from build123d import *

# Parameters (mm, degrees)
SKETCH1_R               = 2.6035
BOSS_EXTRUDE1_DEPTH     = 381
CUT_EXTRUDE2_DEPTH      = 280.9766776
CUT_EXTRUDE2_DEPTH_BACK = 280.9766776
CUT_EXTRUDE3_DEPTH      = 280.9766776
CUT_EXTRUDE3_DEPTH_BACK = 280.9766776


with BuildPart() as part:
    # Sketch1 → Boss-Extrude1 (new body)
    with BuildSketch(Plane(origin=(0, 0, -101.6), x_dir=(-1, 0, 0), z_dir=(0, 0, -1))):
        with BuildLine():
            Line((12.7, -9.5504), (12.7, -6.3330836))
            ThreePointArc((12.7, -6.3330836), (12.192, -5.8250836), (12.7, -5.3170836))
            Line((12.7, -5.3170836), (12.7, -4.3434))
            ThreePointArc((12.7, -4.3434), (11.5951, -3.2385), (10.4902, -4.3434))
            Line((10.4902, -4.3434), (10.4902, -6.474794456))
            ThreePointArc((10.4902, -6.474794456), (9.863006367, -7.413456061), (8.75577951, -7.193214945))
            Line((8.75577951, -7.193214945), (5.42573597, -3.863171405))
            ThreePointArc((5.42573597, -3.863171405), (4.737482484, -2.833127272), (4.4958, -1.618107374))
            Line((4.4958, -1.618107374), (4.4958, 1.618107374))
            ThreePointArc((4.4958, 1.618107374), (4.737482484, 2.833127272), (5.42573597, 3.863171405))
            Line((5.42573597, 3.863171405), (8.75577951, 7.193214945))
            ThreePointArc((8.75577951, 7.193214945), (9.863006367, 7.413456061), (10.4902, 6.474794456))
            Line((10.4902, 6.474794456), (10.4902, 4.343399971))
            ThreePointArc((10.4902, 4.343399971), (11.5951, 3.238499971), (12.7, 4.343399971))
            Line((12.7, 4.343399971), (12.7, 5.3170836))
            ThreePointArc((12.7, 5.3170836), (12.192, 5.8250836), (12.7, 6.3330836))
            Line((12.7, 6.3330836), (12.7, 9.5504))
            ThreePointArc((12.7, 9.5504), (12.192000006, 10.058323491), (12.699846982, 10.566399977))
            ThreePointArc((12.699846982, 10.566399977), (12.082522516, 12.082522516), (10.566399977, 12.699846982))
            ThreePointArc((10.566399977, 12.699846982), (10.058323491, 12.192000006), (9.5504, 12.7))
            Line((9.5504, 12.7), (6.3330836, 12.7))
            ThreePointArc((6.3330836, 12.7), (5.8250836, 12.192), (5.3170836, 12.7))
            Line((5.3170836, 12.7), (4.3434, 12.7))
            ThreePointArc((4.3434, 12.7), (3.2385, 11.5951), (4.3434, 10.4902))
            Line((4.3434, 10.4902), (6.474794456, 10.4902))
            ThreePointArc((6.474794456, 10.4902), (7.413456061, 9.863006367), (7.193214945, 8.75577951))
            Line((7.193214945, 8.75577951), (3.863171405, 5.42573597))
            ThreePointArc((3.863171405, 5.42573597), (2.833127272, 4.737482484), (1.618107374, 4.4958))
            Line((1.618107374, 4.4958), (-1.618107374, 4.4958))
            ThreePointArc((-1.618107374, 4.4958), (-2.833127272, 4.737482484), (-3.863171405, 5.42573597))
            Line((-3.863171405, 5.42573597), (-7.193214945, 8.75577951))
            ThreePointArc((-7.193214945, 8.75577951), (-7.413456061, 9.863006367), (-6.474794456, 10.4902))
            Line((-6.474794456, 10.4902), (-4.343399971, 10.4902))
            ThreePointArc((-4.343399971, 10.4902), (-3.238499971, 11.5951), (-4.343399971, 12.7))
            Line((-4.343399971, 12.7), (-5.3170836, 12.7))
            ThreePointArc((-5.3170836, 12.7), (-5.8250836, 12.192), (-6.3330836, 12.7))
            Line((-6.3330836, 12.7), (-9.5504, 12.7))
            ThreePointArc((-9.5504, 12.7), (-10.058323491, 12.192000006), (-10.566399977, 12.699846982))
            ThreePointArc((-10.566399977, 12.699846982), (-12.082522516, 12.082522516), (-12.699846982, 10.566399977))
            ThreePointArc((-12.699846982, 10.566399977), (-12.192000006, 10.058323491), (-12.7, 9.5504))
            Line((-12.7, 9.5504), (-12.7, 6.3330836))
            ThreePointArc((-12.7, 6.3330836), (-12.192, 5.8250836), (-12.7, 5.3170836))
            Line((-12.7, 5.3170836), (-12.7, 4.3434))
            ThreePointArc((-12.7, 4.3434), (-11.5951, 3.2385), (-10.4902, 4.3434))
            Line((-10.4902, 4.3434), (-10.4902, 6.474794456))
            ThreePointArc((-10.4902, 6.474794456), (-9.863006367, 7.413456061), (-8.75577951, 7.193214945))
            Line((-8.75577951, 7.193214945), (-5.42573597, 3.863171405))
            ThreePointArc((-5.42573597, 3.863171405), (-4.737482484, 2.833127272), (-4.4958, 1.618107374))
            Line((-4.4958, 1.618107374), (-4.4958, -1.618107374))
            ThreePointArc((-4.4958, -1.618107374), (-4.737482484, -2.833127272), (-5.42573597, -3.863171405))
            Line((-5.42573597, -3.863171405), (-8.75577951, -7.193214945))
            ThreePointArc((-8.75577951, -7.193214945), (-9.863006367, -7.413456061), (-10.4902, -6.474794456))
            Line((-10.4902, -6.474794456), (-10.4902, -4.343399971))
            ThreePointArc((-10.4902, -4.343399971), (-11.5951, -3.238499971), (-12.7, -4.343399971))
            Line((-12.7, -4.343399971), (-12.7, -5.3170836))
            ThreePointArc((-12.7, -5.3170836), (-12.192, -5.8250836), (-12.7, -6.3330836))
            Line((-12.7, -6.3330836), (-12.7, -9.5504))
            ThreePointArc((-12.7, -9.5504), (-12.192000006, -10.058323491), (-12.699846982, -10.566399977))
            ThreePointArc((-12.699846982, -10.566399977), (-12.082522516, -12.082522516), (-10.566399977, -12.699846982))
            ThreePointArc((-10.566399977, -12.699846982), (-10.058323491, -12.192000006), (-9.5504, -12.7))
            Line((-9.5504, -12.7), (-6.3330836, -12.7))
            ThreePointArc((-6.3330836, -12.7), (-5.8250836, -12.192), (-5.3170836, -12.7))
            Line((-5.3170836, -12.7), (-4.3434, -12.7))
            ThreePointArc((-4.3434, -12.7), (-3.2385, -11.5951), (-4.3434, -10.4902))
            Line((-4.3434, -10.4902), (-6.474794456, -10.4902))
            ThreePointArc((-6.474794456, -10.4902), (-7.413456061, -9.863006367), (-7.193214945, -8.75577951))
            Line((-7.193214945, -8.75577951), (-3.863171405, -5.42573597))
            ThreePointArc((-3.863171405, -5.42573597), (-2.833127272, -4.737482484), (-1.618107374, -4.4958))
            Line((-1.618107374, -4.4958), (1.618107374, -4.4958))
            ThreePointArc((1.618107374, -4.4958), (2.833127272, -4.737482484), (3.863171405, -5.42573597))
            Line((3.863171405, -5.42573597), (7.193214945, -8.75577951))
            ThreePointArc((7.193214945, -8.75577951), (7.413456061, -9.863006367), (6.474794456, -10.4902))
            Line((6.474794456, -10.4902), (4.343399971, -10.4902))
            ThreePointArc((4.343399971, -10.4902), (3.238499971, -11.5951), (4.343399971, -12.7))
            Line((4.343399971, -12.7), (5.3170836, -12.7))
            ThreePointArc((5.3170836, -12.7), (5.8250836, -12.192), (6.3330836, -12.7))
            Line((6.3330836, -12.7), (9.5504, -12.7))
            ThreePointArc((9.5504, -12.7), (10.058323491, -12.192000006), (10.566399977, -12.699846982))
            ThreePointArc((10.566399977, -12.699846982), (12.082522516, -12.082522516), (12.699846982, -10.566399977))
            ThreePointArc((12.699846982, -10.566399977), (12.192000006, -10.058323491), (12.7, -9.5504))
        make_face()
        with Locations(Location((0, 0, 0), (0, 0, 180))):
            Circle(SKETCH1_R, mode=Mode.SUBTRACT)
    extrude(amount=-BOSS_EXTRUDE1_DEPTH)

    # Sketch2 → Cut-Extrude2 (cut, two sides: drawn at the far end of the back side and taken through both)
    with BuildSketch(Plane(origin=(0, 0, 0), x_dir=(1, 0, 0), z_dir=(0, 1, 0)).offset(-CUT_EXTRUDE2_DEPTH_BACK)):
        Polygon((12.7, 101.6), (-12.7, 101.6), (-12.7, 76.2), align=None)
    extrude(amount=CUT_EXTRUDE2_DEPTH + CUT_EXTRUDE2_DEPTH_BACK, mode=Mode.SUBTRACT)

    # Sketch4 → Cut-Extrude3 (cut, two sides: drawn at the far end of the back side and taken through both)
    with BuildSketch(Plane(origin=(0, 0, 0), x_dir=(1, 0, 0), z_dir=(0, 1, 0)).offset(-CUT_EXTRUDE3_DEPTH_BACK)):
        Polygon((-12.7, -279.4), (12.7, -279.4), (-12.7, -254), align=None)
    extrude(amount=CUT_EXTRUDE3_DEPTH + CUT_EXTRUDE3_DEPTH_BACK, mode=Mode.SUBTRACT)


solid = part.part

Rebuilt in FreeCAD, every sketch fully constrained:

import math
import FreeCAD as App
import Part
import Sketcher
Q = App.Units.Quantity


def add_polygon(sketch, points):
    """Adds a closed chain of lines whose ends are joined by coincident constraints."""
    first, n = sketch.GeometryCount, len(points)
    for a, b in zip(points, points[1:] + points[:1]):
        sketch.addGeometry(Part.LineSegment(App.Vector(*a, 0), App.Vector(*b, 0)), False)
    for i in range(n):
        sketch.addConstraint(Sketcher.Constraint("Coincident", first + i, 2, first + (i + 1) % n, 1))

doc = App.newDocument("Part")
body = doc.addObject("PartDesign::Body", "Body")

sketch1 = body.newObject("Sketcher::SketchObject", "Sketch")
sketch1.AttachmentSupport = (doc.getObject("XY_Plane"), [""])
sketch1.MapMode = "FlatFace"
sketch1.AttachmentOffset = App.Placement(App.Vector(0, 0, -4 * 25.4), App.Rotation())
sketch1.addGeometry(Part.LineSegment(App.Vector(-12.7, -9.6, 0), App.Vector(-12.7, -6.3, 0)), False)
sketch1.addGeometry(Part.ArcOfCircle(Part.Circle(App.Vector(-12.7, -5.8, 0), App.Vector(0, 0, 1), 0.5), math.radians(-90), math.radians(90)), False)
sketch1.addGeometry(Part.LineSegment(App.Vector(-12.7, -5.3, 0), App.Vector(-12.7, -4.3, 0)), False)
sketch1.addGeometry(Part.ArcOfCircle(Part.Circle(App.Vector(-11.6, -4.3, 0), App.Vector(0, 0, 1), 1.1), math.radians(0), math.radians(180)), False)
sketch1.addGeometry(Part.LineSegment(App.Vector(-10.5, -4.3, 0), App.Vector(-10.5, -6.5, 0)), False)
sketch1.addGeometry(Part.ArcOfCircle(Part.Circle(App.Vector(-9.5, -6.5, 0), App.Vector(0, 0, 1), 1), math.radians(180), math.radians(315)), False)
sketch1.addGeometry(Part.LineSegment(App.Vector(-8.8, -7.2, 0), App.Vector(-5.4, -3.9, 0)), False)
sketch1.addGeometry(Part.ArcOfCircle(Part.Circle(App.Vector(-7.7, -1.6, 0), App.Vector(0, 0, 1), 3.2), math.radians(-45), math.radians(0)), False)
sketch1.addGeometry(Part.LineSegment(App.Vector(-4.5, -1.6, 0), App.Vector(-4.5, 1.6, 0)), False)
sketch1.addGeometry(Part.ArcOfCircle(Part.Circle(App.Vector(-7.7, 1.6, 0), App.Vector(0, 0, 1), 3.2), math.radians(0), math.radians(45)), False)
sketch1.addGeometry(Part.LineSegment(App.Vector(-5.4, 3.9, 0), App.Vector(-8.8, 7.2, 0)), False)
sketch1.addGeometry(Part.ArcOfCircle(Part.Circle(App.Vector(-9.5, 6.5, 0), App.Vector(0, 0, 1), 1), math.radians(45), math.radians(180)), False)
sketch1.addGeometry(Part.LineSegment(App.Vector(-10.5, 6.5, 0), App.Vector(-10.5, 4.3, 0)), False)
sketch1.addGeometry(Part.ArcOfCircle(Part.Circle(App.Vector(-11.6, 4.3, 0), App.Vector(0, 0, 1), 1.1), math.radians(180), math.radians(360)), False)
sketch1.addGeometry(Part.LineSegment(App.Vector(-12.7, 4.3, 0), App.Vector(-12.7, 5.3, 0)), False)
sketch1.addGeometry(Part.ArcOfCircle(Part.Circle(App.Vector(-12.7, 5.8, 0), App.Vector(0, 0, 1), 0.5), math.radians(-90), math.radians(90)), False)
sketch1.addGeometry(Part.LineSegment(App.Vector(-12.7, 6.3, 0), App.Vector(-12.7, 9.6, 0)), False)
sketch1.addGeometry(Part.ArcOfCircle(Part.Circle(App.Vector(-12.7, 10.1, 0), App.Vector(0, 0, 1), 0.5), math.radians(-90), math.radians(90)), False)
sketch1.addGeometry(Part.ArcOfCircle(Part.Circle(App.Vector(-10.6, 10.6, 0), App.Vector(0, 0, 1), 2.1), math.radians(89), math.radians(181)), False)
sketch1.addGeometry(Part.ArcOfCircle(Part.Circle(App.Vector(-10.1, 12.7, 0), App.Vector(0, 0, 1), 0.5), math.radians(-180), math.radians(0)), False)
sketch1.addGeometry(Part.LineSegment(App.Vector(-9.6, 12.7, 0), App.Vector(-6.3, 12.7, 0)), False)
sketch1.addGeometry(Part.ArcOfCircle(Part.Circle(App.Vector(-5.8, 12.7, 0), App.Vector(0, 0, 1), 0.5), math.radians(180), math.radians(360)), False)
sketch1.addGeometry(Part.LineSegment(App.Vector(-5.3, 12.7, 0), App.Vector(-4.3, 12.7, 0)), False)
sketch1.addGeometry(Part.ArcOfCircle(Part.Circle(App.Vector(-4.3, 11.6, 0), App.Vector(0, 0, 1), 1.1), math.radians(-90), math.radians(90)), False)
sketch1.addGeometry(Part.LineSegment(App.Vector(-4.3, 10.5, 0), App.Vector(-6.5, 10.5, 0)), False)
sketch1.addGeometry(Part.ArcOfCircle(Part.Circle(App.Vector(-6.5, 9.5, 0), App.Vector(0, 0, 1), 1), math.radians(90), math.radians(225)), False)
sketch1.addGeometry(Part.LineSegment(App.Vector(-7.2, 8.8, 0), App.Vector(-3.9, 5.4, 0)), False)
sketch1.addGeometry(Part.ArcOfCircle(Part.Circle(App.Vector(-1.6, 7.7, 0), App.Vector(0, 0, 1), 3.2), math.radians(-135), math.radians(-90)), False)
sketch1.addGeometry(Part.LineSegment(App.Vector(-1.6, 4.5, 0), App.Vector(1.6, 4.5, 0)), False)
sketch1.addGeometry(Part.ArcOfCircle(Part.Circle(App.Vector(1.6, 7.7, 0), App.Vector(0, 0, 1), 3.2), math.radians(-90), math.radians(-45)), False)
sketch1.addGeometry(Part.LineSegment(App.Vector(3.9, 5.4, 0), App.Vector(7.2, 8.8, 0)), False)
sketch1.addGeometry(Part.ArcOfCircle(Part.Circle(App.Vector(6.5, 9.5, 0), App.Vector(0, 0, 1), 1), math.radians(-45), math.radians(90)), False)
sketch1.addGeometry(Part.LineSegment(App.Vector(6.5, 10.5, 0), App.Vector(4.3, 10.5, 0)), False)
sketch1.addGeometry(Part.ArcOfCircle(Part.Circle(App.Vector(4.3, 11.6, 0), App.Vector(0, 0, 1), 1.1), math.radians(90), math.radians(270)), False)
sketch1.addGeometry(Part.LineSegment(App.Vector(4.3, 12.7, 0), App.Vector(5.3, 12.7, 0)), False)
sketch1.addGeometry(Part.ArcOfCircle(Part.Circle(App.Vector(5.8, 12.7, 0), App.Vector(0, 0, 1), 0.5), math.radians(180), math.radians(360)), False)
sketch1.addGeometry(Part.LineSegment(App.Vector(6.3, 12.7, 0), App.Vector(9.6, 12.7, 0)), False)
sketch1.addGeometry(Part.ArcOfCircle(Part.Circle(App.Vector(10.1, 12.7, 0), App.Vector(0, 0, 1), 0.5), math.radians(180), math.radians(360)), False)
sketch1.addGeometry(Part.ArcOfCircle(Part.Circle(App.Vector(10.6, 10.6, 0), App.Vector(0, 0, 1), 2.1), math.radians(-1), math.radians(91)), False)
sketch1.addGeometry(Part.ArcOfCircle(Part.Circle(App.Vector(12.7, 10.1, 0), App.Vector(0, 0, 1), 0.5), math.radians(90), math.radians(270)), False)
sketch1.addGeometry(Part.LineSegment(App.Vector(12.7, 9.6, 0), App.Vector(12.7, 6.3, 0)), False)
sketch1.addGeometry(Part.ArcOfCircle(Part.Circle(App.Vector(12.7, 5.8, 0), App.Vector(0, 0, 1), 0.5), math.radians(90), math.radians(270)), False)
sketch1.addGeometry(Part.LineSegment(App.Vector(12.7, 5.3, 0), App.Vector(12.7, 4.3, 0)), False)
sketch1.addGeometry(Part.ArcOfCircle(Part.Circle(App.Vector(11.6, 4.3, 0), App.Vector(0, 0, 1), 1.1), math.radians(180), math.radians(360)), False)
sketch1.addGeometry(Part.LineSegment(App.Vector(10.5, 4.3, 0), App.Vector(10.5, 6.5, 0)), False)
sketch1.addGeometry(Part.ArcOfCircle(Part.Circle(App.Vector(9.5, 6.5, 0), App.Vector(0, 0, 1), 1), math.radians(0), math.radians(135)), False)
sketch1.addGeometry(Part.LineSegment(App.Vector(8.8, 7.2, 0), App.Vector(5.4, 3.9, 0)), False)
sketch1.addGeometry(Part.ArcOfCircle(Part.Circle(App.Vector(7.7, 1.6, 0), App.Vector(0, 0, 1), 3.2), math.radians(135), math.radians(180)), False)
sketch1.addGeometry(Part.LineSegment(App.Vector(4.5, 1.6, 0), App.Vector(4.5, -1.6, 0)), False)
sketch1.addGeometry(Part.ArcOfCircle(Part.Circle(App.Vector(7.7, -1.6, 0), App.Vector(0, 0, 1), 3.2), math.radians(180), math.radians(225)), False)
sketch1.addGeometry(Part.LineSegment(App.Vector(5.4, -3.9, 0), App.Vector(8.8, -7.2, 0)), False)
sketch1.addGeometry(Part.ArcOfCircle(Part.Circle(App.Vector(9.5, -6.5, 0), App.Vector(0, 0, 1), 1), math.radians(-135), math.radians(0)), False)
sketch1.addGeometry(Part.LineSegment(App.Vector(10.5, -6.5, 0), App.Vector(10.5, -4.3, 0)), False)
sketch1.addGeometry(Part.ArcOfCircle(Part.Circle(App.Vector(11.6, -4.3, 0), App.Vector(0, 0, 1), 1.1), math.radians(0), math.radians(180)), False)
sketch1.addGeometry(Part.LineSegment(App.Vector(12.7, -4.3, 0), App.Vector(12.7, -5.3, 0)), False)
sketch1.addGeometry(Part.ArcOfCircle(Part.Circle(App.Vector(12.7, -5.8, 0), App.Vector(0, 0, 1), 0.5), math.radians(90), math.radians(270)), False)
sketch1.addGeometry(Part.LineSegment(App.Vector(12.7, -6.3, 0), App.Vector(12.7, -9.6, 0)), False)
sketch1.addGeometry(Part.ArcOfCircle(Part.Circle(App.Vector(12.7, -10.1, 0), App.Vector(0, 0, 1), 0.5), math.radians(90), math.radians(270)), False)
sketch1.addGeometry(Part.ArcOfCircle(Part.Circle(App.Vector(10.6, -10.6, 0), App.Vector(0, 0, 1), 2.1), math.radians(-91), math.radians(1)), False)
sketch1.addGeometry(Part.ArcOfCircle(Part.Circle(App.Vector(10.1, -12.7, 0), App.Vector(0, 0, 1), 0.5), math.radians(0), math.radians(180)), False)
sketch1.addGeometry(Part.LineSegment(App.Vector(9.6, -12.7, 0), App.Vector(6.3, -12.7, 0)), False)
sketch1.addGeometry(Part.ArcOfCircle(Part.Circle(App.Vector(5.8, -12.7, 0), App.Vector(0, 0, 1), 0.5), math.radians(0), math.radians(180)), False)
sketch1.addGeometry(Part.LineSegment(App.Vector(5.3, -12.7, 0), App.Vector(4.3, -12.7, 0)), False)
sketch1.addGeometry(Part.ArcOfCircle(Part.Circle(App.Vector(4.3, -11.6, 0), App.Vector(0, 0, 1), 1.1), math.radians(90), math.radians(270)), False)
sketch1.addGeometry(Part.LineSegment(App.Vector(4.3, -10.5, 0), App.Vector(6.5, -10.5, 0)), False)
sketch1.addGeometry(Part.ArcOfCircle(Part.Circle(App.Vector(6.5, -9.5, 0), App.Vector(0, 0, 1), 1), math.radians(-90), math.radians(45)), False)
sketch1.addGeometry(Part.LineSegment(App.Vector(7.2, -8.8, 0), App.Vector(3.9, -5.4, 0)), False)
sketch1.addGeometry(Part.ArcOfCircle(Part.Circle(App.Vector(1.6, -7.7, 0), App.Vector(0, 0, 1), 3.2), math.radians(45), math.radians(90)), False)
sketch1.addGeometry(Part.LineSegment(App.Vector(1.6, -4.5, 0), App.Vector(-1.6, -4.5, 0)), False)
sketch1.addGeometry(Part.ArcOfCircle(Part.Circle(App.Vector(-1.6, -7.7, 0), App.Vector(0, 0, 1), 3.2), math.radians(90), math.radians(135)), False)
sketch1.addGeometry(Part.LineSegment(App.Vector(-3.9, -5.4, 0), App.Vector(-7.2, -8.8, 0)), False)
sketch1.addGeometry(Part.ArcOfCircle(Part.Circle(App.Vector(-6.5, -9.5, 0), App.Vector(0, 0, 1), 1), math.radians(135), math.radians(270)), False)
sketch1.addGeometry(Part.LineSegment(App.Vector(-6.5, -10.5, 0), App.Vector(-4.3, -10.5, 0)), False)
sketch1.addGeometry(Part.ArcOfCircle(Part.Circle(App.Vector(-4.3, -11.6, 0), App.Vector(0, 0, 1), 1.1), math.radians(-90), math.radians(90)), False)
sketch1.addGeometry(Part.LineSegment(App.Vector(-4.3, -12.7, 0), App.Vector(-5.3, -12.7, 0)), False)
sketch1.addGeometry(Part.ArcOfCircle(Part.Circle(App.Vector(-5.8, -12.7, 0), App.Vector(0, 0, 1), 0.5), math.radians(0), math.radians(180)), False)
sketch1.addGeometry(Part.LineSegment(App.Vector(-6.3, -12.7, 0), App.Vector(-9.6, -12.7, 0)), False)
sketch1.addGeometry(Part.ArcOfCircle(Part.Circle(App.Vector(-10.1, -12.7, 0), App.Vector(0, 0, 1), 0.5), math.radians(0), math.radians(180)), False)
sketch1.addGeometry(Part.ArcOfCircle(Part.Circle(App.Vector(-10.6, -10.6, 0), App.Vector(0, 0, 1), 2.1), math.radians(179), math.radians(271)), False)
sketch1.addGeometry(Part.ArcOfCircle(Part.Circle(App.Vector(-12.7, -10.1, 0), App.Vector(0, 0, 1), 0.5), math.radians(-90), math.radians(90)), False)
sketch1.addGeometry(Part.Circle(App.Vector(0, 0, 0), App.Vector(0, 0, 1), 2.6), False)
sketch1.addConstraint(Sketcher.Constraint("Coincident", 0, 2, 1, 1))
sketch1.addConstraint(Sketcher.Constraint("Coincident", 1, 2, 2, 1))
sketch1.addConstraint(Sketcher.Constraint("Tangent", 2, 2, 3, 2))
sketch1.addConstraint(Sketcher.Constraint("Tangent", 3, 1, 4, 1))
sketch1.addConstraint(Sketcher.Constraint("Tangent", 4, 2, 5, 1))
sketch1.addConstraint(Sketcher.Constraint("Tangent", 5, 2, 6, 1))
sketch1.addConstraint(Sketcher.Constraint("Tangent", 6, 2, 7, 1))
sketch1.addConstraint(Sketcher.Constraint("Tangent", 7, 2, 8, 1))
sketch1.addConstraint(Sketcher.Constraint("Tangent", 8, 2, 9, 1))
sketch1.addConstraint(Sketcher.Constraint("Tangent", 9, 2, 10, 1))
sketch1.addConstraint(Sketcher.Constraint("Tangent", 10, 2, 11, 1))
sketch1.addConstraint(Sketcher.Constraint("Tangent", 11, 2, 12, 1))
sketch1.addConstraint(Sketcher.Constraint("Tangent", 12, 2, 13, 2))
sketch1.addConstraint(Sketcher.Constraint("Tangent", 13, 1, 14, 1))
sketch1.addConstraint(Sketcher.Constraint("Coincident", 14, 2, 15, 1))
sketch1.addConstraint(Sketcher.Constraint("Coincident", 15, 2, 16, 1))
sketch1.addConstraint(Sketcher.Constraint("Coincident", 16, 2, 17, 1))
sketch1.addConstraint(Sketcher.Constraint("Coincident", 17, 2, 18, 2))
sketch1.addConstraint(Sketcher.Constraint("Coincident", 18, 1, 19, 1))
sketch1.addConstraint(Sketcher.Constraint("Coincident", 19, 2, 20, 1))
sketch1.addConstraint(Sketcher.Constraint("Coincident", 20, 2, 21, 1))
sketch1.addConstraint(Sketcher.Constraint("Coincident", 21, 2, 22, 1))
sketch1.addConstraint(Sketcher.Constraint("Tangent", 22, 2, 23, 2))
sketch1.addConstraint(Sketcher.Constraint("Tangent", 23, 1, 24, 1))
sketch1.addConstraint(Sketcher.Constraint("Tangent", 24, 2, 25, 1))
sketch1.addConstraint(Sketcher.Constraint("Tangent", 25, 2, 26, 1))
sketch1.addConstraint(Sketcher.Constraint("Tangent", 26, 2, 27, 1))
sketch1.addConstraint(Sketcher.Constraint("Tangent", 27, 2, 28, 1))
sketch1.addConstraint(Sketcher.Constraint("Tangent", 28, 2, 29, 1))
sketch1.addConstraint(Sketcher.Constraint("Tangent", 29, 2, 30, 1))
sketch1.addConstraint(Sketcher.Constraint("Tangent", 30, 2, 31, 1))
sketch1.addConstraint(Sketcher.Constraint("Tangent", 31, 2, 32, 1))
sketch1.addConstraint(Sketcher.Constraint("Tangent", 32, 2, 33, 2))
sketch1.addConstraint(Sketcher.Constraint("Tangent", 33, 1, 34, 1))
sketch1.addConstraint(Sketcher.Constraint("Coincident", 34, 2, 35, 1))
sketch1.addConstraint(Sketcher.Constraint("Coincident", 35, 2, 36, 1))
sketch1.addConstraint(Sketcher.Constraint("Coincident", 36, 2, 37, 1))
sketch1.addConstraint(Sketcher.Constraint("Coincident", 37, 2, 38, 2))
sketch1.addConstraint(Sketcher.Constraint("Coincident", 38, 1, 39, 1))
sketch1.addConstraint(Sketcher.Constraint("Coincident", 39, 2, 40, 1))
sketch1.addConstraint(Sketcher.Constraint("Coincident", 40, 2, 41, 1))
sketch1.addConstraint(Sketcher.Constraint("Coincident", 41, 2, 42, 1))
sketch1.addConstraint(Sketcher.Constraint("Tangent", 42, 2, 43, 2))
sketch1.addConstraint(Sketcher.Constraint("Tangent", 43, 1, 44, 1))
sketch1.addConstraint(Sketcher.Constraint("Tangent", 44, 2, 45, 1))
sketch1.addConstraint(Sketcher.Constraint("Tangent", 45, 2, 46, 1))
sketch1.addConstraint(Sketcher.Constraint("Tangent", 46, 2, 47, 1))
sketch1.addConstraint(Sketcher.Constraint("Tangent", 47, 2, 48, 1))
sketch1.addConstraint(Sketcher.Constraint("Tangent", 48, 2, 49, 1))
sketch1.addConstraint(Sketcher.Constraint("Tangent", 49, 2, 50, 1))
sketch1.addConstraint(Sketcher.Constraint("Tangent", 50, 2, 51, 1))
sketch1.addConstraint(Sketcher.Constraint("Tangent", 51, 2, 52, 1))
sketch1.addConstraint(Sketcher.Constraint("Tangent", 52, 2, 53, 2))
sketch1.addConstraint(Sketcher.Constraint("Tangent", 53, 1, 54, 1))
sketch1.addConstraint(Sketcher.Constraint("Coincident", 54, 2, 55, 1))
sketch1.addConstraint(Sketcher.Constraint("Coincident", 55, 2, 56, 1))
sketch1.addConstraint(Sketcher.Constraint("Coincident", 56, 2, 57, 1))
sketch1.addConstraint(Sketcher.Constraint("Coincident", 57, 2, 58, 2))
sketch1.addConstraint(Sketcher.Constraint("Coincident", 58, 1, 59, 1))
sketch1.addConstraint(Sketcher.Constraint("Coincident", 59, 2, 60, 1))
sketch1.addConstraint(Sketcher.Constraint("Coincident", 60, 2, 61, 1))
sketch1.addConstraint(Sketcher.Constraint("Coincident", 61, 2, 62, 1))
sketch1.addConstraint(Sketcher.Constraint("Tangent", 62, 2, 63, 2))
sketch1.addConstraint(Sketcher.Constraint("Tangent", 63, 1, 64, 1))
sketch1.addConstraint(Sketcher.Constraint("Tangent", 64, 2, 65, 1))
sketch1.addConstraint(Sketcher.Constraint("Tangent", 65, 2, 66, 1))
sketch1.addConstraint(Sketcher.Constraint("Tangent", 66, 2, 67, 1))
sketch1.addConstraint(Sketcher.Constraint("Tangent", 67, 2, 68, 1))
sketch1.addConstraint(Sketcher.Constraint("Tangent", 68, 2, 69, 1))
sketch1.addConstraint(Sketcher.Constraint("Tangent", 69, 2, 70, 1))
sketch1.addConstraint(Sketcher.Constraint("Tangent", 70, 2, 71, 1))
sketch1.addConstraint(Sketcher.Constraint("Tangent", 71, 2, 72, 1))
sketch1.addConstraint(Sketcher.Constraint("Tangent", 72, 2, 73, 2))
sketch1.addConstraint(Sketcher.Constraint("Tangent", 73, 1, 74, 1))
sketch1.addConstraint(Sketcher.Constraint("Coincident", 74, 2, 75, 1))
sketch1.addConstraint(Sketcher.Constraint("Coincident", 75, 2, 76, 1))
sketch1.addConstraint(Sketcher.Constraint("Coincident", 76, 2, 77, 1))
sketch1.addConstraint(Sketcher.Constraint("Coincident", 77, 2, 78, 2))
sketch1.addConstraint(Sketcher.Constraint("Coincident", 78, 1, 79, 1))
sketch1.addConstraint(Sketcher.Constraint("Coincident", 79, 2, 0, 1))
sketch1.addConstraint(Sketcher.Constraint("Vertical", 0))
sketch1.addConstraint(Sketcher.Constraint("Vertical", 2))
sketch1.addConstraint(Sketcher.Constraint("Vertical", 4))
sketch1.addConstraint(Sketcher.Constraint("Vertical", 8))
sketch1.addConstraint(Sketcher.Constraint("Vertical", 12))
sketch1.addConstraint(Sketcher.Constraint("Vertical", 14))
sketch1.addConstraint(Sketcher.Constraint("Vertical", 16))
sketch1.addConstraint(Sketcher.Constraint("Horizontal", 20))
sketch1.addConstraint(Sketcher.Constraint("Horizontal", 22))
sketch1.addConstraint(Sketcher.Constraint("Horizontal", 24))
sketch1.addConstraint(Sketcher.Constraint("Horizontal", 28))
sketch1.addConstraint(Sketcher.Constraint("Horizontal", 32))
sketch1.addConstraint(Sketcher.Constraint("Horizontal", 34))
sketch1.addConstraint(Sketcher.Constraint("Horizontal", 36))
sketch1.addConstraint(Sketcher.Constraint("Vertical", 40))
sketch1.addConstraint(Sketcher.Constraint("Vertical", 42))
sketch1.addConstraint(Sketcher.Constraint("Vertical", 44))
sketch1.addConstraint(Sketcher.Constraint("Vertical", 48))
sketch1.addConstraint(Sketcher.Constraint("Vertical", 52))
sketch1.addConstraint(Sketcher.Constraint("Vertical", 54))
sketch1.addConstraint(Sketcher.Constraint("Vertical", 56))
sketch1.addConstraint(Sketcher.Constraint("Horizontal", 60))
sketch1.addConstraint(Sketcher.Constraint("Horizontal", 62))
sketch1.addConstraint(Sketcher.Constraint("Horizontal", 64))
sketch1.addConstraint(Sketcher.Constraint("Horizontal", 68))
sketch1.addConstraint(Sketcher.Constraint("Horizontal", 72))
sketch1.addConstraint(Sketcher.Constraint("Horizontal", 74))
sketch1.addConstraint(Sketcher.Constraint("Horizontal", 76))
sketch1.addConstraint(Sketcher.Constraint("Coincident", 80, 3, -1, 1))
sketch1.addConstraint(Sketcher.Constraint("Equal", 7, 9))
sketch1.addConstraint(Sketcher.Constraint("Equal", 5, 11))
sketch1.addConstraint(Sketcher.Constraint("Equal", 3, 13))
sketch1.addConstraint(Sketcher.Constraint("Equal", 1, 15))
sketch1.addConstraint(Sketcher.Constraint("Equal", 15, 17))
sketch1.addConstraint(Sketcher.Constraint("Equal", 17, 19))
sketch1.addConstraint(Sketcher.Constraint("Equal", 19, 21))
sketch1.addConstraint(Sketcher.Constraint("Equal", 13, 23))
sketch1.addConstraint(Sketcher.Constraint("Equal", 11, 25))
sketch1.addConstraint(Sketcher.Constraint("Equal", 9, 27))
sketch1.addConstraint(Sketcher.Constraint("Equal", 27, 29))
sketch1.addConstraint(Sketcher.Constraint("Equal", 25, 31))
sketch1.addConstraint(Sketcher.Constraint("Equal", 23, 33))
sketch1.addConstraint(Sketcher.Constraint("Equal", 21, 35))
sketch1.addConstraint(Sketcher.Constraint("Equal", 35, 37))
sketch1.addConstraint(Sketcher.Constraint("Equal", 18, 38))
sketch1.addConstraint(Sketcher.Constraint("Equal", 37, 39))
sketch1.addConstraint(Sketcher.Constraint("Equal", 39, 41))
sketch1.addConstraint(Sketcher.Constraint("Equal", 33, 43))
sketch1.addConstraint(Sketcher.Constraint("Equal", 31, 45))
sketch1.addConstraint(Sketcher.Constraint("Equal", 29, 47))
sketch1.addConstraint(Sketcher.Constraint("Equal", 47, 49))
sketch1.addConstraint(Sketcher.Constraint("Equal", 45, 51))
sketch1.addConstraint(Sketcher.Constraint("Equal", 43, 53))
sketch1.addConstraint(Sketcher.Constraint("Equal", 41, 55))
sketch1.addConstraint(Sketcher.Constraint("Equal", 55, 57))
sketch1.addConstraint(Sketcher.Constraint("Equal", 38, 58))
sketch1.addConstraint(Sketcher.Constraint("Equal", 57, 59))
sketch1.addConstraint(Sketcher.Constraint("Equal", 59, 61))
sketch1.addConstraint(Sketcher.Constraint("Equal", 53, 63))
sketch1.addConstraint(Sketcher.Constraint("Equal", 51, 65))
sketch1.addConstraint(Sketcher.Constraint("Equal", 49, 67))
sketch1.addConstraint(Sketcher.Constraint("Equal", 67, 69))
sketch1.addConstraint(Sketcher.Constraint("Equal", 65, 71))
sketch1.addConstraint(Sketcher.Constraint("Equal", 63, 73))
sketch1.addConstraint(Sketcher.Constraint("Equal", 61, 75))
sketch1.addConstraint(Sketcher.Constraint("Equal", 75, 77))
sketch1.addConstraint(Sketcher.Constraint("Equal", 58, 78))
sketch1.addConstraint(Sketcher.Constraint("Equal", 77, 79))
sketch1.addConstraint(Sketcher.Constraint("Symmetric", 1, 3, 41, 3, -1, 1))
sketch1.addConstraint(Sketcher.Constraint("Symmetric", 3, 3, 43, 3, -1, 1))
sketch1.addConstraint(Sketcher.Constraint("Symmetric", 7, 3, 47, 3, -1, 1))
sketch1.addConstraint(Sketcher.Constraint("Symmetric", 11, 3, 51, 3, -1, 1))
sketch1.addConstraint(Sketcher.Constraint("Symmetric", 15, 3, 55, 3, -1, 1))
sketch1.addConstraint(Sketcher.Constraint("Symmetric", 17, 3, 57, 3, -1, 1))
sketch1.addConstraint(Sketcher.Constraint("Symmetric", 18, 3, 58, 3, -1, 1))
sketch1.addConstraint(Sketcher.Constraint("Symmetric", 19, 3, 59, 3, -1, 1))
sketch1.addConstraint(Sketcher.Constraint("Symmetric", 21, 3, 61, 3, -1, 1))
sketch1.addConstraint(Sketcher.Constraint("Symmetric", 23, 3, 63, 3, -1, 1))
sketch1.addConstraint(Sketcher.Constraint("Symmetric", 27, 3, 67, 3, -1, 1))
sketch1.addConstraint(Sketcher.Constraint("Symmetric", 31, 3, 71, 3, -1, 1))
sketch1.addConstraint(Sketcher.Constraint("Symmetric", 35, 3, 75, 3, -1, 1))
sketch1.addConstraint(Sketcher.Constraint("Symmetric", 37, 3, 77, 3, -1, 1))
sketch1.addConstraint(Sketcher.Constraint("Symmetric", 38, 3, 78, 3, -1, 1))
sketch1.addConstraint(Sketcher.Constraint("Symmetric", 39, 3, 79, 3, -1, 1))
sketch1.addConstraint(Sketcher.Constraint("Symmetric", 25, 3, 31, 3, -2))
sketch1.addConstraint(Sketcher.Constraint("Symmetric", 21, 3, 35, 3, -2))
sketch1.addConstraint(Sketcher.Constraint("Symmetric", 19, 3, 37, 3, -2))
sketch1.addConstraint(Sketcher.Constraint("Symmetric", 18, 3, 38, 3, -2))
sketch1.addConstraint(Sketcher.Constraint("Symmetric", 17, 3, 39, 3, -2))
sketch1.addConstraint(Sketcher.Constraint("Symmetric", 15, 3, 41, 3, -2))
sketch1.addConstraint(Sketcher.Constraint("Symmetric", 13, 3, 43, 3, -2))
sketch1.addConstraint(Sketcher.Constraint("Symmetric", 10, 2, 45, 2, -2))
sketch1.addConstraint(Sketcher.Constraint("Symmetric", 6, 2, 49, 2, -2))
sketch1.addConstraint(Sketcher.Constraint("Symmetric", 66, 2, 69, 2, -2))
sketch1.addConstraint(Sketcher.Constraint("Perpendicular", 6, 10))
sketch1.addConstraint(Sketcher.Constraint("Parallel", 10, 26))
sketch1.addConstraint(Sketcher.Constraint("Perpendicular", 26, 30))
sketch1.addConstraint(Sketcher.Constraint("Horizontal", 19, 3, 21, 3))
sketch1.addConstraint(Sketcher.Constraint("Horizontal", 3, 3, 53, 3))
sketch1.addConstraint(Sketcher.Constraint("Horizontal", 37, 3, 19, 2))
sketch1.addConstraint(Sketcher.Constraint("Horizontal", 20, 2, 21, 2))
sketch1.addConstraint(Sketcher.Constraint("Horizontal", 34, 2, 35, 2))
sketch1.addConstraint(Sketcher.Constraint("Horizontal", 77, 3, 59, 2))
sketch1.addConstraint(Sketcher.Constraint("Horizontal", 74, 2, 75, 2))
sketch1.addConstraint(Sketcher.Constraint("Vertical", 15, 3, 17, 3))
sketch1.addConstraint(Sketcher.Constraint("Vertical", 33, 3, 63, 3))
sketch1.addConstraint(Sketcher.Constraint("Vertical", 23, 3, 73, 3))
sketch1.addConstraint(Sketcher.Constraint("Vertical", 79, 3, 0, 2))
sketch1.addConstraint(Sketcher.Constraint("Vertical", 0, 2, 1, 2))
sketch1.addConstraint(Sketcher.Constraint("Vertical", 14, 2, 15, 2))
sketch1.addConstraint(Sketcher.Constraint("Vertical", 57, 3, 39, 2))
sketch1.addConstraint(Sketcher.Constraint("Vertical", 54, 2, 55, 2))
sketch1.addConstraint(Sketcher.Constraint("Equal", 76, 0))
sketch1.addConstraint(Sketcher.Constraint("Equal", 74, 2))
sketch1.addConstraint(Sketcher.Constraint("Equal", 72, 4))
sketch1.addConstraint(Sketcher.Constraint("Equal", 68, 8))
sketch1.addConstraint(Sketcher.Constraint("Equal", 10, 26))
sketch1.addConstraint(Sketcher.Constraint("Radius", 1, Q("0.02 in")))
sketch1.addConstraint(Sketcher.Constraint("Radius", 5, Q("0.04 in")))
sketch1.addConstraint(Sketcher.Constraint("Diameter", 80, Q("0.205 in")))
sketch1.addConstraint(Sketcher.Constraint("Radius", 7, Q("0.125 in")))
sketch1.addConstraint(Sketcher.Constraint("Radius", 18, Q("0.083 in")))
sketch1.addConstraint(Sketcher.Constraint("DistanceX", 1, 3, -1, 1, Q("0.5 in")))
sketch1.addConstraint(Sketcher.Constraint("DistanceY", -1, 1, 19, 3, Q("0.5 in")))
sketch1.addConstraint(Sketcher.Constraint("Radius", 3, Q("0.0435 in")))
sketch1.addConstraint(Sketcher.Constraint("DistanceY", 3, 3, -1, 1, Q("0.171 in")))
sketch1.addConstraint(Sketcher.Constraint("DistanceX", 7, 3, -1, 1, Q("0.302 in")))
sketch1.addConstraint(Sketcher.Constraint("DistanceY", -1, 1, 17, 3, Q("0.396 in")))
sketch1.addConstraint(Sketcher.Constraint("DistanceX", 18, 3, -1, 1, Q("0.417 in")))
sketch1.addConstraint(Sketcher.Constraint("DistanceY", -1, 1, 18, 3, Q("0.417 in")))
sketch1.addConstraint(Sketcher.Constraint("DistanceX", 20, 1, 20, 2, Q("3.217316 mm")))
sketch1.addConstraint(Sketcher.Constraint("DistanceX", 24, 2, 24, 1, Q("2.131394 mm")))
pad1 = body.newObject("PartDesign::Pad", "Pad")
pad1.Profile = sketch1
pad1.Length = Q("15 in")

sketch2 = body.newObject("Sketcher::SketchObject", "Sketch001")
sketch2.AttachmentSupport = (doc.getObject("XZ_Plane"), [""])
sketch2.MapMode = "FlatFace"
add_polygon(sketch2, [(13, -102), (-13, -102), (-13, -76)])
sketch2.addConstraint(Sketcher.Constraint("Horizontal", 0))
sketch2.addConstraint(Sketcher.Constraint("Vertical", 1))
sketch2.addConstraint(Sketcher.Constraint("Equal", 0, 1))
sketch2.addConstraint(Sketcher.Constraint("DistanceX", 0, 2, 0, 1, Q("1 in")))
sketch2.addConstraint(Sketcher.Constraint("DistanceY", 0, 2, -1, 1, Q("4 in")))
sketch2.addConstraint(Sketcher.Constraint("DistanceX", 0, 2, -1, 1, Q("0.5 in")))
pocket1 = body.newObject("PartDesign::Pocket", "Pocket")
pocket1.Profile = sketch2
pocket1.Type = "ThroughAll"
pocket1.Midplane = True

sketch3 = body.newObject("Sketcher::SketchObject", "Sketch002")
sketch3.AttachmentSupport = (doc.getObject("XZ_Plane"), [""])
sketch3.MapMode = "FlatFace"
add_polygon(sketch3, [(-13, 279), (13, 279), (-13, 254)])
sketch3.addConstraint(Sketcher.Constraint("Horizontal", 0))
sketch3.addConstraint(Sketcher.Constraint("Vertical", 2))
sketch3.addConstraint(Sketcher.Constraint("Equal", 0, 2))
sketch3.addConstraint(Sketcher.Constraint("DistanceX", 0, 1, 0, 2, Q("1 in")))
sketch3.addConstraint(Sketcher.Constraint("DistanceY", -1, 1, 0, 2, Q("11 in")))
sketch3.addConstraint(Sketcher.Constraint("DistanceX", -1, 1, 0, 2, Q("0.5 in")))
pocket2 = body.newObject("PartDesign::Pocket", "Pocket001")
pocket2.Profile = sketch3
pocket2.Type = "ThroughAll"
pocket2.Midplane = True

doc.recompute()
